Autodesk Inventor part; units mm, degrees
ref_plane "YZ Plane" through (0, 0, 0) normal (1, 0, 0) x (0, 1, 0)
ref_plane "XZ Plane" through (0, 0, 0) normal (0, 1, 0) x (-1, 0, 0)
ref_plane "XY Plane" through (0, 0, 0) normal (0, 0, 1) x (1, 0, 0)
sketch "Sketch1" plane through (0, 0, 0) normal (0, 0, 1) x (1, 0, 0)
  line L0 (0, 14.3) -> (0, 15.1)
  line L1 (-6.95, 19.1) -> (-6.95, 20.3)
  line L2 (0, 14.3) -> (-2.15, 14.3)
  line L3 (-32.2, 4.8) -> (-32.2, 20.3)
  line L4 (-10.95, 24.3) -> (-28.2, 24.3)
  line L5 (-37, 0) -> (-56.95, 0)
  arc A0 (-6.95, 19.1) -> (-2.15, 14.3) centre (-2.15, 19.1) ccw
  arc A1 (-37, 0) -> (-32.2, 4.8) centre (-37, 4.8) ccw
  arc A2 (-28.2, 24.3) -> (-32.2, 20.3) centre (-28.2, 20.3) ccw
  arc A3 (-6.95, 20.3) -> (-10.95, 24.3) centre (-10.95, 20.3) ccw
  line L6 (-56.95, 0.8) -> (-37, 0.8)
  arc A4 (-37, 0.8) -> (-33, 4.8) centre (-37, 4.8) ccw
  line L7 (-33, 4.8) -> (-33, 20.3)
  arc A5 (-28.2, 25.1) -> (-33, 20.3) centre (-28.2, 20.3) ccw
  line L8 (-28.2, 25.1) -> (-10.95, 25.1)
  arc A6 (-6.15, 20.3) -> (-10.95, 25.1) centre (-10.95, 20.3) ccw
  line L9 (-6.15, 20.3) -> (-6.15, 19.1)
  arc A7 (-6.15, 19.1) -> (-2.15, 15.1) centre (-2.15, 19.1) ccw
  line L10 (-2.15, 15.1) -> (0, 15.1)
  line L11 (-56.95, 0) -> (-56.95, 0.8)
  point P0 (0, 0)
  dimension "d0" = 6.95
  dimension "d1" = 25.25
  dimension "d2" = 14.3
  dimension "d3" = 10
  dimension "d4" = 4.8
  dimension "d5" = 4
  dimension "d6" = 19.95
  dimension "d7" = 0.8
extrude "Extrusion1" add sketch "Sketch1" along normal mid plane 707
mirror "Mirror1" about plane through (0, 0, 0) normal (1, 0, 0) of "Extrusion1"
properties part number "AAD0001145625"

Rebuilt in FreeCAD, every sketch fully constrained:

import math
import FreeCAD as App
import Part
import Sketcher
from FreeCAD import Vector

doc = App.newDocument("Part")
body = doc.addObject("PartDesign::Body", "Body")

# Sketch on XY plane
sketch1 = body.newObject("Sketcher::SketchObject", "Sketch")
sketch1.AttachmentSupport = (doc.getObject("XY_Plane"), [""])
sketch1.MapMode = "FlatFace"
sketch1.addGeometry([
    Part.LineSegment(Vector(-2.1, 14.3, 0), Vector(0, 14.3, 0)),  # 0
    Part.LineSegment(Vector(0, 14.3, 0), Vector(0, 15.1, 0)),  # 1
    Part.LineSegment(Vector(0, 15.1, 0), Vector(-2.1, 15.1, 0)),  # 2
    Part.ArcOfCircle(Part.Circle(Vector(-2.1, 19.1, 0), Vector(0, 0, 1), 4), math.radians(180), math.radians(270)),  # 3
    Part.LineSegment(Vector(-6.2, 19.1, 0), Vector(-6.2, 20.3, 0)),  # 4
    Part.ArcOfCircle(Part.Circle(Vector(-10.9, 20.3, 0), Vector(0, 0, 1), 4.8), math.radians(0), math.radians(90)),  # 5
    Part.LineSegment(Vector(-10.9, 25.1, 0), Vector(-28.2, 25.1, 0)),  # 6
    Part.ArcOfCircle(Part.Circle(Vector(-28.2, 20.3, 0), Vector(0, 0, 1), 4.8), math.radians(90), math.radians(180)),  # 7
    Part.LineSegment(Vector(-33, 20.3, 0), Vector(-33, 4.8, 0)),  # 8
    Part.ArcOfCircle(Part.Circle(Vector(-37, 4.8, 0), Vector(0, 0, 1), 4), math.radians(-90), math.radians(0)),  # 9
    Part.LineSegment(Vector(-37, 0.8, 0), Vector(-57, 0.8, 0)),  # 10
    Part.LineSegment(Vector(-57, 0.8, 0), Vector(-57, 0, 0)),  # 11
    Part.LineSegment(Vector(-57, 0, 0), Vector(-37, 0, 0)),  # 12
    Part.ArcOfCircle(Part.Circle(Vector(-37, 4.8, 0), Vector(0, 0, 1), 4.8), math.radians(-90), math.radians(0)),  # 13
    Part.LineSegment(Vector(-32.2, 4.8, 0), Vector(-32.2, 20.3, 0)),  # 14
    Part.ArcOfCircle(Part.Circle(Vector(-28.2, 20.3, 0), Vector(0, 0, 1), 4), math.radians(90), math.radians(180)),  # 15
    Part.LineSegment(Vector(-28.2, 24.3, 0), Vector(-10.9, 24.3, 0)),  # 16
    Part.ArcOfCircle(Part.Circle(Vector(-10.9, 20.3, 0), Vector(0, 0, 1), 4), math.radians(0), math.radians(90)),  # 17
    Part.LineSegment(Vector(-7, 20.3, 0), Vector(-7, 19.1, 0)),  # 18
    Part.ArcOfCircle(Part.Circle(Vector(-2.1, 19.1, 0), Vector(0, 0, 1), 4.8), math.radians(180), math.radians(270)),  # 19
], False)
sketch1.addConstraint([
    Sketcher.Constraint("Coincident", 0, 2, 1, 1),
    Sketcher.Constraint("Coincident", 1, 2, 2, 1),
    Sketcher.Constraint("Tangent", 2, 2, 3, 2),
    Sketcher.Constraint("Tangent", 3, 1, 4, 1),
    Sketcher.Constraint("Tangent", 4, 2, 5, 1),
    Sketcher.Constraint("Tangent", 5, 2, 6, 1),
    Sketcher.Constraint("Tangent", 6, 2, 7, 1),
    Sketcher.Constraint("Tangent", 7, 2, 8, 1),
    Sketcher.Constraint("Tangent", 8, 2, 9, 2),
    Sketcher.Constraint("Tangent", 9, 1, 10, 1),
    Sketcher.Constraint("Coincident", 10, 2, 11, 1),
    Sketcher.Constraint("Coincident", 11, 2, 12, 1),
    Sketcher.Constraint("Tangent", 12, 2, 13, 1),
    Sketcher.Constraint("Tangent", 13, 2, 14, 1),
    Sketcher.Constraint("Tangent", 14, 2, 15, 2),
    Sketcher.Constraint("Tangent", 15, 1, 16, 1),
    Sketcher.Constraint("Tangent", 16, 2, 17, 2),
    Sketcher.Constraint("Tangent", 17, 1, 18, 1),
    Sketcher.Constraint("Tangent", 18, 2, 19, 1),
    Sketcher.Constraint("Tangent", 19, 2, 0, 1),
    Sketcher.Constraint("Horizontal", 0),
    Sketcher.Constraint("Vertical", 1),
    Sketcher.Constraint("Horizontal", 2),
    Sketcher.Constraint("Vertical", 4),
    Sketcher.Constraint("Horizontal", 6),
    Sketcher.Constraint("Vertical", 8),
    Sketcher.Constraint("Horizontal", 10),
    Sketcher.Constraint("Vertical", 11),
    Sketcher.Constraint("Horizontal", 12),
    Sketcher.Constraint("Vertical", 14),
    Sketcher.Constraint("Horizontal", 16),
    Sketcher.Constraint("Vertical", 18),
    Sketcher.Constraint("Coincident", 13, 3, 9, 3),
    Sketcher.Constraint("Coincident", 15, 3, 7, 3),
    Sketcher.Constraint("Coincident", 17, 3, 5, 3),
    Sketcher.Constraint("Coincident", 19, 3, 3, 3),
    Sketcher.Constraint("Equal", 5, 7),
    Sketcher.Constraint("Equal", 3, 9),
    Sketcher.Constraint("Equal", 7, 13),
    Sketcher.Constraint("PointOnObject", 0, 2, -2),
    Sketcher.Constraint("PointOnObject", 11, 2, -1),
    Sketcher.Constraint("Radius", 3, 4.0),
    Sketcher.Constraint("Radius", 5, 4.8),
    Sketcher.Constraint("DistanceX", 10, 2, 10, 1, 19.95),
    Sketcher.Constraint("DistanceY", -1, 1, 0, 2, 14.3),
    Sketcher.Constraint("DistanceX", 17, 1, -1, 1, 6.95),
    Sketcher.Constraint("DistanceY", 4, 1, 4, 2, 1.2),
    Sketcher.Constraint("DistanceX", 9, 3, -1, 1, 37.0),
])
pad1 = body.newObject("PartDesign::Pad", "Pad")
pad1.Profile = sketch1
pad1.Length = 707
pad1.Midplane = True
doc.recompute()

mirrored = body.newObject("PartDesign::Mirrored", "Mirrored")
mirrored.Originals = [pad1]
mirrored.MirrorPlane = (doc.getObject("YZ_Plane"), [""])
body.Tip = mirrored

doc.recompute()
